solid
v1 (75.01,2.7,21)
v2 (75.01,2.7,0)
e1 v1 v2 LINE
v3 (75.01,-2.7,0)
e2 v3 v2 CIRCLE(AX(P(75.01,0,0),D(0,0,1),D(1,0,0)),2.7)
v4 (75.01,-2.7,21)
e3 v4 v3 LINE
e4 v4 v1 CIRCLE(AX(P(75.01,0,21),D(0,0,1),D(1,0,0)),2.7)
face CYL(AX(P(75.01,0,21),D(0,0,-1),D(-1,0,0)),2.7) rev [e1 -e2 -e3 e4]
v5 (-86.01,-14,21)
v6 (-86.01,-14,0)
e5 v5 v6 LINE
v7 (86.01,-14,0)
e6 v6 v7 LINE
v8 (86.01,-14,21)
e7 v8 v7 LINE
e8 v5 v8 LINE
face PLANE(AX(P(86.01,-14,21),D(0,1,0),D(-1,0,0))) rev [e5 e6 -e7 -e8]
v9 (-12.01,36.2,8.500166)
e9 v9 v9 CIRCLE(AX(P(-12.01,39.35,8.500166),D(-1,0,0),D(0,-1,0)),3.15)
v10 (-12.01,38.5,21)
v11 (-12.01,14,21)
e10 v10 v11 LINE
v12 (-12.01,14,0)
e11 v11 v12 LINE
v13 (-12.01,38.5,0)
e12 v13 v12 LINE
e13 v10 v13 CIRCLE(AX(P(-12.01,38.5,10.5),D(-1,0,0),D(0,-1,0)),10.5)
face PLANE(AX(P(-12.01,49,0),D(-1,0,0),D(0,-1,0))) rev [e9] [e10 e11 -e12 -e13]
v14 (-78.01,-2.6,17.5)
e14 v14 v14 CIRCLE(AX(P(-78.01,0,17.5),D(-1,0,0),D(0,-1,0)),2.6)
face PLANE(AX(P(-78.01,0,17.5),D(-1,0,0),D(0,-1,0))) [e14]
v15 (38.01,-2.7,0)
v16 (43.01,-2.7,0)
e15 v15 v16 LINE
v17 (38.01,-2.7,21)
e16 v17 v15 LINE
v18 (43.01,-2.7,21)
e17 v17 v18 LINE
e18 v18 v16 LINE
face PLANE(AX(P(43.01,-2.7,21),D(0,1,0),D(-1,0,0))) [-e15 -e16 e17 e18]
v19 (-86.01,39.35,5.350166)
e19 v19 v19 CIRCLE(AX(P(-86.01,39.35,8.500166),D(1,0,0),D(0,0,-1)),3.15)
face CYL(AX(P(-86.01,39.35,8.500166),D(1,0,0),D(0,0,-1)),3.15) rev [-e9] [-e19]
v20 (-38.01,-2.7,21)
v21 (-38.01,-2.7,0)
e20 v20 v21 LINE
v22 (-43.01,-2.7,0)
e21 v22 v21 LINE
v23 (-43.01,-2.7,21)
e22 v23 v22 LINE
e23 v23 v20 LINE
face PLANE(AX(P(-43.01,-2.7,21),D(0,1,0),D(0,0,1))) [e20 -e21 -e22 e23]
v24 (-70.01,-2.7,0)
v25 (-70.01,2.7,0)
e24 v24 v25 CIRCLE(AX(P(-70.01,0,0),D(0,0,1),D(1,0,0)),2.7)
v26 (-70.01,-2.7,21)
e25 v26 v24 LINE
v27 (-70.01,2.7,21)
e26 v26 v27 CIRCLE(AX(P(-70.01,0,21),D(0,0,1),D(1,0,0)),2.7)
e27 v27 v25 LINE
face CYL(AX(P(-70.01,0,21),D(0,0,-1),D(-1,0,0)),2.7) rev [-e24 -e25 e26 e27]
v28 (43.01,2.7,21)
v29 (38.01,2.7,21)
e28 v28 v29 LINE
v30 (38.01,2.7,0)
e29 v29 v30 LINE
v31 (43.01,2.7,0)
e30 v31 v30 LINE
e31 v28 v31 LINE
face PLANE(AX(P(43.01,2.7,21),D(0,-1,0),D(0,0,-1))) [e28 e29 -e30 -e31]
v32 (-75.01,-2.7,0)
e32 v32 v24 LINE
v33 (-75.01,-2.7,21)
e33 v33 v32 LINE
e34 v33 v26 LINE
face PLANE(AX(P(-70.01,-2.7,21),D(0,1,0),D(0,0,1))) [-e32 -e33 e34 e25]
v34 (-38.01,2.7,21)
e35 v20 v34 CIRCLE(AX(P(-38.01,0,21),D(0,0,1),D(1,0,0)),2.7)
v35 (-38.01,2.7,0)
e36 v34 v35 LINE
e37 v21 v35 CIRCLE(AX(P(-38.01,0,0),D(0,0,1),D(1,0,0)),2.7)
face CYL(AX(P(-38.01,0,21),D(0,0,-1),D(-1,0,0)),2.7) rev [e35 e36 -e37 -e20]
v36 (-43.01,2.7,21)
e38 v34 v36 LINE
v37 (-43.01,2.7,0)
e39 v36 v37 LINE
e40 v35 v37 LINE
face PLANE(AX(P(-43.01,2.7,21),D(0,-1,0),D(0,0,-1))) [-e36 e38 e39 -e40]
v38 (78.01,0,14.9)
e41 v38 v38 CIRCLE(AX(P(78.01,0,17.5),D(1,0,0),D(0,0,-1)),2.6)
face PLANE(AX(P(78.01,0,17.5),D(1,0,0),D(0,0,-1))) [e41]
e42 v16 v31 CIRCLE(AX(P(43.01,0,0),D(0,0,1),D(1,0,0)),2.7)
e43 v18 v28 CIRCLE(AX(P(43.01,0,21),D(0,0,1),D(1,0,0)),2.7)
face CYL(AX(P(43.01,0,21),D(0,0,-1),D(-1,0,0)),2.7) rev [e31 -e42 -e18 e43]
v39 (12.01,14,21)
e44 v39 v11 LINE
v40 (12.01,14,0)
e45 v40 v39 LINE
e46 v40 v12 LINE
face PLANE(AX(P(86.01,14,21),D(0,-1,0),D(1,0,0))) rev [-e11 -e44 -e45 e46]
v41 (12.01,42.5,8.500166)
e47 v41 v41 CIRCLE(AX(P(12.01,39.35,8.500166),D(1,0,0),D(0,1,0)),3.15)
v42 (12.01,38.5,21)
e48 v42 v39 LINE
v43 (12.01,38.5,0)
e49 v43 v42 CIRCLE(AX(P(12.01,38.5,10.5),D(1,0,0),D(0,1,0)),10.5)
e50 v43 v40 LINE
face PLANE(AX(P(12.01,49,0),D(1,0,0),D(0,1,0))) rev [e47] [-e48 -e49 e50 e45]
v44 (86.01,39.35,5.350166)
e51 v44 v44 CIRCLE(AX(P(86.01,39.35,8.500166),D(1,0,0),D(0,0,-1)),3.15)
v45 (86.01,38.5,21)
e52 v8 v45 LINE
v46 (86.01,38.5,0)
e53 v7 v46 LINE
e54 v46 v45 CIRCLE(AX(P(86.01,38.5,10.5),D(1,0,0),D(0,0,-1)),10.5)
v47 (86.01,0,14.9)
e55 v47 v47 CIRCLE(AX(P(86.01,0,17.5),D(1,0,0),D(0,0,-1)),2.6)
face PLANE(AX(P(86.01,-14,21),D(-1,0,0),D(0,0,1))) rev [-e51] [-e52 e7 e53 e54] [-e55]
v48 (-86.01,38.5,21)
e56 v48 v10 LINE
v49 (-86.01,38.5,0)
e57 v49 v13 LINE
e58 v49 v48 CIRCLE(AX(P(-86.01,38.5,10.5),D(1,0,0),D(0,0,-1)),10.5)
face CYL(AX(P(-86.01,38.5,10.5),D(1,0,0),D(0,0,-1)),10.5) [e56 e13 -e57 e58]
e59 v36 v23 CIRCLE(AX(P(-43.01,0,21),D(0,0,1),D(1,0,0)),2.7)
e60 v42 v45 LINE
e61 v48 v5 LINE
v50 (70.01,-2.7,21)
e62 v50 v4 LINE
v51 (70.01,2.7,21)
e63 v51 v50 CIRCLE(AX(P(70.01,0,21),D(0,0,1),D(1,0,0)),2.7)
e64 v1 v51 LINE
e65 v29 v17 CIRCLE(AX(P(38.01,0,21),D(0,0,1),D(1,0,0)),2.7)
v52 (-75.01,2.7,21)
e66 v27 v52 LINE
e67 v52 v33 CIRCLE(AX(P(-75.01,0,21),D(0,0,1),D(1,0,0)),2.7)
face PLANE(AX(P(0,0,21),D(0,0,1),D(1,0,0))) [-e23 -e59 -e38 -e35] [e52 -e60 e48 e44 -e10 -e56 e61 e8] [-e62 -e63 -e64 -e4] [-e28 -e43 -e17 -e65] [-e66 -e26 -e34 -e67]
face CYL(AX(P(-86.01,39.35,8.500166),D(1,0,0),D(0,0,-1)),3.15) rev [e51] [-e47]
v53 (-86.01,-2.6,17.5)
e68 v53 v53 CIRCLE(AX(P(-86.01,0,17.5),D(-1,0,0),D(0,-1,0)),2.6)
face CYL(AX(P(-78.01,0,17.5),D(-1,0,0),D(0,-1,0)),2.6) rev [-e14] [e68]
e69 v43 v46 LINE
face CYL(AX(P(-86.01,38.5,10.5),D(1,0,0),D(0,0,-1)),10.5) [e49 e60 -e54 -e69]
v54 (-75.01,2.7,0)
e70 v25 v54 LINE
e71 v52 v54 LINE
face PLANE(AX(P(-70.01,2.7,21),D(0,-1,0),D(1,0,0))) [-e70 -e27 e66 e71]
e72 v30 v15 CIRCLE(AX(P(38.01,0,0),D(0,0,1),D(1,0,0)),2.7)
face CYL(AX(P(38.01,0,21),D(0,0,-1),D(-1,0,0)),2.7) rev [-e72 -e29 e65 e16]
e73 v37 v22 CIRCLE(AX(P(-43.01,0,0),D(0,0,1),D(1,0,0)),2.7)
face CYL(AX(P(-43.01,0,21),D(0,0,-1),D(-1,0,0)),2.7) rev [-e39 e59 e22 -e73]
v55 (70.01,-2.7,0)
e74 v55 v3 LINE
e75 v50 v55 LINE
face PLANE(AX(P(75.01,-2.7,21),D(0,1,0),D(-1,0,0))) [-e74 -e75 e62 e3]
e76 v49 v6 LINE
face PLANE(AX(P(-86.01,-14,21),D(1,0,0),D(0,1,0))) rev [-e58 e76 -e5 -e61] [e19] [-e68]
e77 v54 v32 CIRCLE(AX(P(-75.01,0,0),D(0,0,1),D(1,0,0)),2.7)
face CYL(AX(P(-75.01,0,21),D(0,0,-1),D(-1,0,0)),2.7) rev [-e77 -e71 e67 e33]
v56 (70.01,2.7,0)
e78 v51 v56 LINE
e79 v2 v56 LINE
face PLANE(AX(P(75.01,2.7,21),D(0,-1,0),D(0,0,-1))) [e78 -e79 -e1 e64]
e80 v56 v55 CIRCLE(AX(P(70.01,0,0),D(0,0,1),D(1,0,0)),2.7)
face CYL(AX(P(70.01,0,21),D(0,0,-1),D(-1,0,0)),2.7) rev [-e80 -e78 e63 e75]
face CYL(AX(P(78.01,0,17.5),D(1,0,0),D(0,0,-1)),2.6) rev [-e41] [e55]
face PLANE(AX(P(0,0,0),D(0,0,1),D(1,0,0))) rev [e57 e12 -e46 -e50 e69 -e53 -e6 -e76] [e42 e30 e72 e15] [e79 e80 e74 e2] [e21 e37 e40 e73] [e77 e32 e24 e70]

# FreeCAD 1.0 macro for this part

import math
import FreeCAD as App
import Part
import Sketcher

doc = App.newDocument("Part")
body = doc.addObject("PartDesign::Body", "Body")

sketch1 = body.newObject("Sketcher::SketchObject", "Sketch")
sketch1.AttachmentSupport = (doc.getObject("XY_Plane"), [""])
sketch1.MapMode = "FlatFace"
sketch1.addGeometry([
    Part.LineSegment(App.Vector(-86, 14, 0), App.Vector(-86, -14, 0)),
    Part.LineSegment(App.Vector(-86, -14, 0), App.Vector(86, -14, 0)),
    Part.LineSegment(App.Vector(86, -14, 0), App.Vector(86, 14, 0)),
    Part.LineSegment(App.Vector(86, 14, 0), App.Vector(-86, 14, 0)),
    Part.ArcOfCircle(Part.Circle(App.Vector(-70, 0, 0), App.Vector(0, 0, 1), 2.7), math.radians(-90), math.radians(90)),
    Part.LineSegment(App.Vector(-70, -2.7, 0), App.Vector(-75, -2.7, 0)),
    Part.ArcOfCircle(Part.Circle(App.Vector(-75, 0, 0), App.Vector(0, 0, 1), 2.7), math.radians(90), math.radians(270)),
    Part.LineSegment(App.Vector(-75, 2.7, 0), App.Vector(-70, 2.7, 0)),
    Part.ArcOfCircle(Part.Circle(App.Vector(-43, 0, 0), App.Vector(0, 0, 1), 2.7), math.radians(90), math.radians(270)),
    Part.LineSegment(App.Vector(-43, 2.7, 0), App.Vector(-38, 2.7, 0)),
    Part.ArcOfCircle(Part.Circle(App.Vector(-38, 0, 0), App.Vector(0, 0, 1), 2.7), math.radians(-90), math.radians(90)),
    Part.LineSegment(App.Vector(-38, -2.7, 0), App.Vector(-43, -2.7, 0)),
    Part.ArcOfCircle(Part.Circle(App.Vector(43, 0, 0), App.Vector(0, 0, 1), 2.7), math.radians(-90), math.radians(90)),
    Part.LineSegment(App.Vector(43, -2.7, 0), App.Vector(38, -2.7, 0)),
    Part.ArcOfCircle(Part.Circle(App.Vector(38, 0, 0), App.Vector(0, 0, 1), 2.7), math.radians(90), math.radians(270)),
    Part.LineSegment(App.Vector(38, 2.7, 0), App.Vector(43, 2.7, 0)),
    Part.ArcOfCircle(Part.Circle(App.Vector(75, 0, 0), App.Vector(0, 0, 1), 2.7), math.radians(-90), math.radians(90)),
    Part.LineSegment(App.Vector(75, -2.7, 0), App.Vector(70, -2.7, 0)),
    Part.ArcOfCircle(Part.Circle(App.Vector(70, 0, 0), App.Vector(0, 0, 1), 2.7), math.radians(90), math.radians(270)),
    Part.LineSegment(App.Vector(70, 2.7, 0), App.Vector(75, 2.7, 0)),
], False)
sketch1.addConstraint([
    Sketcher.Constraint("Coincident", 0, 2, 1, 1),
    Sketcher.Constraint("Coincident", 1, 2, 2, 1),
    Sketcher.Constraint("Coincident", 2, 2, 3, 1),
    Sketcher.Constraint("Coincident", 3, 2, 0, 1),
    Sketcher.Constraint("Tangent", 4, 1, 5, 1),
    Sketcher.Constraint("Tangent", 5, 2, 6, 2),
    Sketcher.Constraint("Tangent", 6, 1, 7, 1),
    Sketcher.Constraint("Tangent", 7, 2, 4, 2),
    Sketcher.Constraint("Tangent", 8, 1, 9, 1),
    Sketcher.Constraint("Tangent", 9, 2, 10, 2),
    Sketcher.Constraint("Tangent", 10, 1, 11, 1),
    Sketcher.Constraint("Tangent", 11, 2, 8, 2),
    Sketcher.Constraint("Tangent", 12, 1, 13, 1),
    Sketcher.Constraint("Tangent", 13, 2, 14, 2),
    Sketcher.Constraint("Tangent", 14, 1, 15, 1),
    Sketcher.Constraint("Tangent", 15, 2, 12, 2),
    Sketcher.Constraint("Tangent", 16, 1, 17, 1),
    Sketcher.Constraint("Tangent", 17, 2, 18, 2),
    Sketcher.Constraint("Tangent", 18, 1, 19, 1),
    Sketcher.Constraint("Tangent", 19, 2, 16, 2),
    Sketcher.Constraint("Vertical", 0),
    Sketcher.Constraint("Horizontal", 1),
    Sketcher.Constraint("Vertical", 2),
    Sketcher.Constraint("Horizontal", 3),
    Sketcher.Constraint("Horizontal", 5),
    Sketcher.Constraint("Horizontal", 7),
    Sketcher.Constraint("Horizontal", 9),
    Sketcher.Constraint("Horizontal", 11),
    Sketcher.Constraint("Horizontal", 13),
    Sketcher.Constraint("Horizontal", 15),
    Sketcher.Constraint("Horizontal", 17),
    Sketcher.Constraint("Horizontal", 19),
    Sketcher.Constraint("Equal", 6, 8),
    Sketcher.Constraint("Equal", 10, 12),
    Sketcher.Constraint("Equal", 14, 16),
    Sketcher.Constraint("Symmetric", 8, 3, 12, 3, -1, 1),
    Sketcher.Constraint("Symmetric", 6, 3, 16, 3, -1, 1),
    Sketcher.Constraint("Symmetric", 0, 2, 2, 2, -1, 1),
    Sketcher.Constraint("Symmetric", 10, 3, 14, 3, -2),
    Sketcher.Constraint("Symmetric", 4, 3, 18, 3, -2),
    Sketcher.Constraint("Equal", 7, 9),
    Sketcher.Constraint("Radius", 4, 2.7),
    Sketcher.Constraint("DistanceX", 5, 2, 5, 1, 5.0),
    Sketcher.Constraint("DistanceY", 0, 2, 0, 1, 28.0),
    Sketcher.Constraint("DistanceX", 4, 3, 8, 3, 27.0),
    Sketcher.Constraint("DistanceX", 0, 2, 6, 3, 11.0),
    Sketcher.Constraint("DistanceX", 1, 1, 1, 2, 172.02),
])
pad1 = body.newObject("PartDesign::Pad", "Pad")
pad1.Profile = sketch1
pad1.Length = 21

sketch2 = body.newObject("Sketcher::SketchObject", "Sketch001")
sketch2.AttachmentSupport = (doc.getObject("XZ_Plane"), [""])
sketch2.MapMode = "FlatFace"
sketch2.AttachmentOffset = App.Placement(App.Vector(0, 0, -14), App.Rotation())
sketch2.addGeometry([
    Part.LineSegment(App.Vector(-86, 0, 0), App.Vector(-86, 21, 0)),
    Part.LineSegment(App.Vector(-86, 21, 0), App.Vector(-12, 21, 0)),
    Part.LineSegment(App.Vector(-12, 21, 0), App.Vector(-12, 0, 0)),
    Part.LineSegment(App.Vector(-12, 0, 0), App.Vector(-86, 0, 0)),
    Part.LineSegment(App.Vector(12, 0, 0), App.Vector(12, 21, 0)),
    Part.LineSegment(App.Vector(12, 21, 0), App.Vector(86, 21, 0)),
    Part.LineSegment(App.Vector(86, 21, 0), App.Vector(86, 0, 0)),
    Part.LineSegment(App.Vector(86, 0, 0), App.Vector(12, 0, 0)),
], False)
sketch2.addConstraint([
    Sketcher.Constraint("Coincident", 0, 2, 1, 1),
    Sketcher.Constraint("Coincident", 1, 2, 2, 1),
    Sketcher.Constraint("Coincident", 2, 2, 3, 1),
    Sketcher.Constraint("Coincident", 3, 2, 0, 1),
    Sketcher.Constraint("Coincident", 4, 2, 5, 1),
    Sketcher.Constraint("Coincident", 5, 2, 6, 1),
    Sketcher.Constraint("Coincident", 6, 2, 7, 1),
    Sketcher.Constraint("Coincident", 7, 2, 4, 1),
    Sketcher.Constraint("Vertical", 0),
    Sketcher.Constraint("Horizontal", 1),
    Sketcher.Constraint("Vertical", 2),
    Sketcher.Constraint("Horizontal", 3),
    Sketcher.Constraint("Vertical", 4),
    Sketcher.Constraint("Horizontal", 5),
    Sketcher.Constraint("Vertical", 6),
    Sketcher.Constraint("Horizontal", 7),
    Sketcher.Constraint("Symmetric", 3, 2, 6, 2, -1, 1),
    Sketcher.Constraint("Symmetric", 1, 2, 4, 2, -2),
    Sketcher.Constraint("PointOnObject", 2, 2, -1),
    Sketcher.Constraint("DistanceX", 1, 1, 1, 2, 74.0),
    Sketcher.Constraint("DistanceY", 0, 1, 0, 2, 21.0),
    Sketcher.Constraint("DistanceX", 0, 2, -1, 1, 86.01),
])
pad2 = body.newObject("PartDesign::Pad", "Pad001")
pad2.Profile = sketch2
pad2.Length = 35
pad2.Reversed = True

sketch3 = body.newObject("Sketcher::SketchObject", "Sketch002")
sketch3.AttachmentSupport = (doc.getObject("YZ_Plane"), [""])
sketch3.MapMode = "FlatFace"
sketch3.AttachmentOffset = App.Placement(App.Vector(0, 0, 86.01), App.Rotation())
sketch3.addGeometry([
    Part.LineSegment(App.Vector(49, 0, 0), App.Vector(49, 10, 0)),
    Part.ArcOfCircle(Part.Circle(App.Vector(38, 11, 0), App.Vector(0, 0, 1), 11), math.radians(-90), math.radians(0)),
    Part.LineSegment(App.Vector(38, 0, 0), App.Vector(49, 0, 0)),
    Part.LineSegment(App.Vector(49, 10, 0), App.Vector(49, 21, 0)),
    Part.LineSegment(App.Vector(49, 21, 0), App.Vector(38, 21, 0)),
    Part.ArcOfCircle(Part.Circle(App.Vector(38, 10, 0), App.Vector(0, 0, 1), 11), math.radians(0), math.radians(90)),
], False)
sketch3.addConstraint([
    Sketcher.Constraint("Tangent", 0, 2, 1, 2),
    Sketcher.Constraint("Tangent", 1, 1, 2, 1),
    Sketcher.Constraint("Coincident", 2, 2, 0, 1),
    Sketcher.Constraint("Coincident", 3, 2, 4, 1),
    Sketcher.Constraint("Tangent", 4, 2, 5, 2),
    Sketcher.Constraint("Tangent", 5, 1, 3, 1),
    Sketcher.Constraint("Vertical", 0),
    Sketcher.Constraint("Horizontal", 2),
    Sketcher.Constraint("Vertical", 3),
    Sketcher.Constraint("Horizontal", 4),
    Sketcher.Constraint("Coincident", 5, 3, 1, 3),
    Sketcher.Constraint("Equal", 1, 5),
    Sketcher.Constraint("PointOnObject", 1, 1, -1),
    Sketcher.Constraint("Radius", 1, 10.5),
    Sketcher.Constraint("DistanceX", -1, 1, 0, 2, 49.0),
])
pocket1 = body.newObject("PartDesign::Pocket", "Pocket")
pocket1.Profile = sketch3
pocket1.Type = "ThroughAll"

sketch4 = body.newObject("Sketcher::SketchObject", "Sketch003")
sketch4.AttachmentSupport = (doc.getObject("YZ_Plane"), [""])
sketch4.MapMode = "FlatFace"
sketch4.AttachmentOffset = App.Placement(App.Vector(0, 0, 86.01), App.Rotation())
sketch4.addGeometry(Part.Circle(App.Vector(39.4, 8.5, 0), App.Vector(0, 0, 1), 3.1), False)
sketch4.addConstraint([
    Sketcher.Constraint("Diameter", 0, 6.3),
    Sketcher.Constraint("DistanceX", -1, 1, 0, 3, 39.35),
    Sketcher.Constraint("DistanceY", -1, 1, 0, 3, 8.500166),
])
pocket2 = body.newObject("PartDesign::Pocket", "Pocket001")
pocket2.Profile = sketch4
pocket2.Type = "ThroughAll"

sketch5 = body.newObject("Sketcher::SketchObject", "Sketch004")
sketch5.AttachmentSupport = (doc.getObject("YZ_Plane"), [""])
sketch5.MapMode = "FlatFace"
sketch5.AttachmentOffset = App.Placement(App.Vector(0, 0, 86.01), App.Rotation())
sketch5.addGeometry(Part.Circle(App.Vector(0, 17.5, 0), App.Vector(0, 0, 1), 2.6), False)
sketch5.addConstraint([
    Sketcher.Constraint("PointOnObject", 0, 3, -2),
    Sketcher.Constraint("Diameter", 0, 5.2),
    Sketcher.Constraint("DistanceY", -1, 1, 0, 3, 17.5),
])
pocket3 = body.newObject("PartDesign::Pocket", "Pocket002")
pocket3.Profile = sketch5
pocket3.Length = 8

sketch6 = body.newObject("Sketcher::SketchObject", "Sketch005")
sketch6.AttachmentSupport = (doc.getObject("YZ_Plane"), [""])
sketch6.MapMode = "FlatFace"
sketch6.AttachmentOffset = App.Placement(App.Vector(0, 0, -86.01), App.Rotation())
sketch6.addGeometry(Part.Circle(App.Vector(0, 17.5, 0), App.Vector(0, 0, 1), 2.6), False)
sketch6.addConstraint([
    Sketcher.Constraint("PointOnObject", 0, 3, -2),
    Sketcher.Constraint("Diameter", 0, 5.2),
    Sketcher.Constraint("DistanceY", -1, 1, 0, 3, 17.5),
])
pocket4 = body.newObject("PartDesign::Pocket", "Pocket003")
pocket4.Profile = sketch6
pocket4.Length = 8
pocket4.Reversed = True

doc.recompute()
